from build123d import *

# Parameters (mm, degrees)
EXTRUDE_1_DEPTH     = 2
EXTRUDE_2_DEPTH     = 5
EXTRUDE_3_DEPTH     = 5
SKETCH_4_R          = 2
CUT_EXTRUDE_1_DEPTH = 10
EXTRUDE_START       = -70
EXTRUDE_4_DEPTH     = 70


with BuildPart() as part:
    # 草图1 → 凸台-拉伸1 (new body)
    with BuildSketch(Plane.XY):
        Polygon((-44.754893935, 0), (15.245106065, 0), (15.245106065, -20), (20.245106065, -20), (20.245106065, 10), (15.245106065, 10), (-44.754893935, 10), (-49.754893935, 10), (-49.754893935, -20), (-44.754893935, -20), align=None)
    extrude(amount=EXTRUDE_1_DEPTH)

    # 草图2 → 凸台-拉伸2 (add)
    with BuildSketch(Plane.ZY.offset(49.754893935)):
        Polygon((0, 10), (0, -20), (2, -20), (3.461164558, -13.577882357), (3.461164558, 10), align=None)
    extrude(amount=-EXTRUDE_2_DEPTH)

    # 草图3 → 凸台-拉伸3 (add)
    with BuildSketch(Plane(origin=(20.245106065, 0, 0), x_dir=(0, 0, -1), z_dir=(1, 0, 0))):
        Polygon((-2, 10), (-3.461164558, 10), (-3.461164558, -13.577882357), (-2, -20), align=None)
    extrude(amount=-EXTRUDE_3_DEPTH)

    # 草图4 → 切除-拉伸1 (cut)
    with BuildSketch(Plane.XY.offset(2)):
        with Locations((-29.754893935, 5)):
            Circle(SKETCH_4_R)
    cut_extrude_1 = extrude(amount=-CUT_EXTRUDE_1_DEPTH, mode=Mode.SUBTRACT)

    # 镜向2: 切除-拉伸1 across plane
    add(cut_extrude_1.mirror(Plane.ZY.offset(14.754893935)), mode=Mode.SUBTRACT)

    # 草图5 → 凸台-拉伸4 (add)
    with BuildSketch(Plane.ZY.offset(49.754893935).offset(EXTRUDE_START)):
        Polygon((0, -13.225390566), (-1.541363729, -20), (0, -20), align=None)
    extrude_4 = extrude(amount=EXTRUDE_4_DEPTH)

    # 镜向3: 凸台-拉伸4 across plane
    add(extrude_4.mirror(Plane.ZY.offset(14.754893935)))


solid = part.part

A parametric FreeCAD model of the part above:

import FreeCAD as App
import Part
import Sketcher
Q = App.Units.Quantity

doc = App.newDocument("Part")
body = doc.addObject("PartDesign::Body", "Body")

sketch1 = doc.addObject("Sketcher::SketchObject", "Sketch")
body.addObject(sketch1)
sketch1.AttachmentSupport = (doc.XY_Plane, [""])
sketch1.MapMode = "FlatFace"
sketch1.addGeometry([
    Part.LineSegment(App.Vector(-45, 0, 0), App.Vector(15, 0, 0)),
    Part.LineSegment(App.Vector(15, 0, 0), App.Vector(15, -20, 0)),
    Part.LineSegment(App.Vector(15, -20, 0), App.Vector(20, -20, 0)),
    Part.LineSegment(App.Vector(20, -20, 0), App.Vector(20, 10, 0)),
    Part.LineSegment(App.Vector(20, 10, 0), App.Vector(-50, 10, 0)),
    Part.LineSegment(App.Vector(-50, 10, 0), App.Vector(-50, -20, 0)),
    Part.LineSegment(App.Vector(-50, -20, 0), App.Vector(-45, -20, 0)),
    Part.LineSegment(App.Vector(-45, -20, 0), App.Vector(-45, 0, 0)),
], False)
sketch1.addConstraint([
    Sketcher.Constraint("Coincident", 0, 2, 1, 1),
    Sketcher.Constraint("Coincident", 1, 2, 2, 1),
    Sketcher.Constraint("Coincident", 2, 2, 3, 1),
    Sketcher.Constraint("Coincident", 3, 2, 4, 1),
    Sketcher.Constraint("Coincident", 4, 2, 5, 1),
    Sketcher.Constraint("Coincident", 5, 2, 6, 1),
    Sketcher.Constraint("Coincident", 6, 2, 7, 1),
    Sketcher.Constraint("Coincident", 7, 2, 0, 1),
    Sketcher.Constraint("Horizontal", 0),
    Sketcher.Constraint("Vertical", 1),
    Sketcher.Constraint("Horizontal", 2),
    Sketcher.Constraint("Vertical", 3),
    Sketcher.Constraint("Horizontal", 4),
    Sketcher.Constraint("Vertical", 5),
    Sketcher.Constraint("Horizontal", 6),
    Sketcher.Constraint("Vertical", 7),
    Sketcher.Constraint("PointOnObject", 0, 2, -1),
    Sketcher.Constraint("Horizontal", 2, 2, 5, 2),
    Sketcher.Constraint("Equal", 2, 6),
    Sketcher.Constraint("DistanceX", 0, 1, 0, 2, Q("60 mm")),
    Sketcher.Constraint("DistanceX", 2, 1, 2, 2, Q("5 mm")),
    Sketcher.Constraint("DistanceY", 1, 2, 1, 1, Q("20 mm")),
    Sketcher.Constraint("DistanceY", 3, 1, 3, 2, Q("30 mm")),
    Sketcher.Constraint("DistanceX", -1, 1, 0, 2, Q("15.245106 mm")),
])
pad1 = doc.addObject("PartDesign::Pad", "Pad")
body.addObject(pad1)
pad1.Profile = sketch1
pad1.Length = 2

sketch2 = doc.addObject("Sketcher::SketchObject", "Sketch001")
body.addObject(sketch2)
sketch2.AttachmentSupport = (doc.YZ_Plane, [""])
sketch2.MapMode = "FlatFace"
sketch2.AttachmentOffset = App.Placement(App.Vector(0, 0, -49.754894), App.Rotation())
sketch2.addGeometry([
    Part.LineSegment(App.Vector(10, 0, 0), App.Vector(-20, 0, 0)),
    Part.LineSegment(App.Vector(-20, 0, 0), App.Vector(-20, 2, 0)),
    Part.LineSegment(App.Vector(-20, 2, 0), App.Vector(-13.6, 3.5, 0)),
    Part.LineSegment(App.Vector(-13.6, 3.5, 0), App.Vector(10, 3.5, 0)),
    Part.LineSegment(App.Vector(10, 3.5, 0), App.Vector(10, 0, 0)),
], False)
sketch2.addConstraint([
    Sketcher.Constraint("Coincident", 0, 2, 1, 1),
    Sketcher.Constraint("Coincident", 1, 2, 2, 1),
    Sketcher.Constraint("Coincident", 2, 2, 3, 1),
    Sketcher.Constraint("Coincident", 3, 2, 4, 1),
    Sketcher.Constraint("Coincident", 4, 2, 0, 1),
    Sketcher.Constraint("Horizontal", 0),
    Sketcher.Constraint("Vertical", 1),
    Sketcher.Constraint("Horizontal", 3),
    Sketcher.Constraint("Vertical", 4),
    Sketcher.Constraint("PointOnObject", 0, 2, -1),
    Sketcher.Constraint("DistanceX", 0, 2, 0, 1, Q("30 mm")),
    Sketcher.Constraint("DistanceY", 1, 1, 1, 2, Q("2 mm")),
    Sketcher.Constraint("DistanceX", 0, 2, -1, 1, Q("20 mm")),
    Sketcher.Constraint("DistanceX", 3, 1, 3, 2, Q("23.577882 mm")),
    Sketcher.Constraint("DistanceY", 4, 2, 4, 1, Q("3.461165 mm")),
])
pad2 = doc.addObject("PartDesign::Pad", "Pad001")
body.addObject(pad2)
pad2.Profile = sketch2
pad2.Length = 5

sketch3 = doc.addObject("Sketcher::SketchObject", "Sketch002")
body.addObject(sketch3)
sketch3.AttachmentSupport = (doc.YZ_Plane, [""])
sketch3.MapMode = "FlatFace"
sketch3.AttachmentOffset = App.Placement(App.Vector(0, 0, 20.245106), App.Rotation())
sketch3.addGeometry([
    Part.LineSegment(App.Vector(10, 2, 0), App.Vector(10, 3.5, 0)),
    Part.LineSegment(App.Vector(10, 3.5, 0), App.Vector(-13.6, 3.5, 0)),
    Part.LineSegment(App.Vector(-13.6, 3.5, 0), App.Vector(-20, 2, 0)),
    Part.LineSegment(App.Vector(-20, 2, 0), App.Vector(10, 2, 0)),
], False)
sketch3.addConstraint([
    Sketcher.Constraint("Coincident", 0, 2, 1, 1),
    Sketcher.Constraint("Coincident", 1, 2, 2, 1),
    Sketcher.Constraint("Coincident", 2, 2, 3, 1),
    Sketcher.Constraint("Coincident", 3, 2, 0, 1),
    Sketcher.Constraint("Vertical", 0),
    Sketcher.Constraint("Horizontal", 1),
    Sketcher.Constraint("Horizontal", 3),
    Sketcher.Constraint("DistanceX", 3, 1, 3, 2, Q("30 mm")),
    Sketcher.Constraint("DistanceX", -1, 1, 0, 2, Q("10 mm")),
    Sketcher.Constraint("DistanceY", -1, 1, 2, 2, Q("2 mm")),
    Sketcher.Constraint("DistanceX", 1, 2, 1, 1, Q("23.577882 mm")),
    Sketcher.Constraint("DistanceY", 0, 1, 0, 2, Q("1.461165 mm")),
])
pad3 = doc.addObject("PartDesign::Pad", "Pad002")
body.addObject(pad3)
pad3.Profile = sketch3
pad3.Length = 5
pad3.Reversed = True

sketch4 = doc.addObject("Sketcher::SketchObject", "Sketch003")
body.addObject(sketch4)
sketch4.AttachmentSupport = (doc.XY_Plane, [""])
sketch4.MapMode = "FlatFace"
sketch4.AttachmentOffset = App.Placement(App.Vector(0, 0, 2), App.Rotation())
sketch4.addGeometry(Part.Circle(App.Vector(-29.8, 5, 0), App.Vector(0, 0, 1), 2), False)
sketch4.addConstraint([
    Sketcher.Constraint("Diameter", 0, Q("4 mm")),
    Sketcher.Constraint("DistanceY", -1, 1, 0, 3, Q("5 mm")),
    Sketcher.Constraint("DistanceX", 0, 3, -1, 1, Q("29.754894 mm")),
])
pocket1 = doc.addObject("PartDesign::Pocket", "Pocket")
body.addObject(pocket1)
pocket1.Profile = sketch4
pocket1.Length = 10
doc.recompute()

datumplane = doc.addObject("PartDesign::Plane", "DatumPlane")
body.addObject(datumplane)
datumplane.AttachmentSupport = (doc.YZ_Plane, [""])
datumplane.MapMode = "FlatFace"
datumplane.AttachmentOffset = App.Placement(App.Vector(0, 0, -14.754894), App.Rotation())
mirrored = doc.addObject("PartDesign::Mirrored", "Mirrored")
body.addObject(mirrored)
mirrored.Originals = [pocket1]
mirrored.MirrorPlane = (datumplane, [""])
body.Tip = mirrored

sketch5 = doc.addObject("Sketcher::SketchObject", "Sketch004")
body.addObject(sketch5)
sketch5.AttachmentSupport = (doc.YZ_Plane, [""])
sketch5.MapMode = "FlatFace"
sketch5.AttachmentOffset = App.Placement(App.Vector(0, 0, 20.245106), App.Rotation())
sketch5.addGeometry([
    Part.LineSegment(App.Vector(-13.2, 0, 0), App.Vector(-20, -1.5, 0)),
    Part.LineSegment(App.Vector(-20, -1.5, 0), App.Vector(-20, 0, 0)),
    Part.LineSegment(App.Vector(-20, 0, 0), App.Vector(-13.2, 0, 0)),
], False)
sketch5.addConstraint([
    Sketcher.Constraint("Coincident", 0, 2, 1, 1),
    Sketcher.Constraint("Coincident", 1, 2, 2, 1),
    Sketcher.Constraint("Coincident", 2, 2, 0, 1),
    Sketcher.Constraint("Vertical", 1),
    Sketcher.Constraint("Horizontal", 2),
    Sketcher.Constraint("PointOnObject", 1, 2, -1),
    Sketcher.Constraint("DistanceX", 0, 2, -1, 1, Q("20 mm")),
    Sketcher.Constraint("DistanceX", 2, 1, 2, 2, Q("6.774609 mm")),
    Sketcher.Constraint("DistanceY", 1, 1, 1, 2, Q("1.541364 mm")),
])
pad4 = doc.addObject("PartDesign::Pad", "Pad003")
body.addObject(pad4)
pad4.Profile = sketch5
pad4.Length = 70
pad4.Reversed = True
doc.recompute()

datumplane2 = doc.addObject("PartDesign::Plane", "DatumPlane001")
body.addObject(datumplane2)
datumplane2.AttachmentSupport = (doc.YZ_Plane, [""])
datumplane2.MapMode = "FlatFace"
datumplane2.AttachmentOffset = App.Placement(App.Vector(0, 0, -14.754894), App.Rotation())
mirrored2 = doc.addObject("PartDesign::Mirrored", "Mirrored001")
body.addObject(mirrored2)
mirrored2.Originals = [pad4]
mirrored2.MirrorPlane = (datumplane2, [""])
body.Tip = mirrored2

doc.recompute()
